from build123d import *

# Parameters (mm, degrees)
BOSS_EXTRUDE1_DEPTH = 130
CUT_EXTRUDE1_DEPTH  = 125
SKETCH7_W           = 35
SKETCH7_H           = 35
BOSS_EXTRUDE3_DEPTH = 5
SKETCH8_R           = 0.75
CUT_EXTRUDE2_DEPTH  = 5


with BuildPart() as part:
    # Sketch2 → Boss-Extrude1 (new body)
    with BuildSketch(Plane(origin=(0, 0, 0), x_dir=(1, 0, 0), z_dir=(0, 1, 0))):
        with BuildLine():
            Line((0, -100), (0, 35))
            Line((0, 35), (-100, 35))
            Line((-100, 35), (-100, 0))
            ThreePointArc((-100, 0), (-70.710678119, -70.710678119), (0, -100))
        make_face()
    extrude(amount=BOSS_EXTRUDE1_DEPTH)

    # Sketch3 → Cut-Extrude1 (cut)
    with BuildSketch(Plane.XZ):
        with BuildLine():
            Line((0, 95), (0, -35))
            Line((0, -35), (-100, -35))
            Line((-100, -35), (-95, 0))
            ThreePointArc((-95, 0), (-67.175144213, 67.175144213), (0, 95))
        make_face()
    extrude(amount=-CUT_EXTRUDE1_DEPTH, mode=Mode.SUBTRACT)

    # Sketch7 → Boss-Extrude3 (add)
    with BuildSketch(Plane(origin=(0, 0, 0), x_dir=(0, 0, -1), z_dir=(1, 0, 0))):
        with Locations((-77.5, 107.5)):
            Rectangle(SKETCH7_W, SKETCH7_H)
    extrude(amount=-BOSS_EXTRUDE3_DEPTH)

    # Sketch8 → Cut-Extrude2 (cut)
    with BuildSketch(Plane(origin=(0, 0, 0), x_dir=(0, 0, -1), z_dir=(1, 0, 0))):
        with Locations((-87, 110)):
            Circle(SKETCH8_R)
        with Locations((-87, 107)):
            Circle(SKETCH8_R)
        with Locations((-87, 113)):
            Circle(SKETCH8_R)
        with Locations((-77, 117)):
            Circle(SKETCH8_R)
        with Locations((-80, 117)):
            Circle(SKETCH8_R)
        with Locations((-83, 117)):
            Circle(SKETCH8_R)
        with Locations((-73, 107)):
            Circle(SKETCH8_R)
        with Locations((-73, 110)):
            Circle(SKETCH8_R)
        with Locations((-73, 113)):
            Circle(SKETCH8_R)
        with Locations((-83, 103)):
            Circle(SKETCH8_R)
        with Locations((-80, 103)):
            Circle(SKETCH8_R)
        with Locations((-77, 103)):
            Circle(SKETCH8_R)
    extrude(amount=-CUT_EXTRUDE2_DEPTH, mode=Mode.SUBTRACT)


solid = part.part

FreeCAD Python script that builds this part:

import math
import FreeCAD as App
import Part
import Sketcher
Q = App.Units.Quantity

doc = App.newDocument("Part")
body = doc.addObject("PartDesign::Body", "Body")

# Sketch on XZ plane
sketch1 = doc.addObject("Sketcher::SketchObject", "Sketch")
body.addObject(sketch1)
sketch1.AttachmentSupport = (doc.XZ_Plane, [""])
sketch1.MapMode = "FlatFace"
sketch1.addGeometry([
    Part.LineSegment(App.Vector(0, 100, 0), App.Vector(0, -35, 0)),
    Part.LineSegment(App.Vector(0, -35, 0), App.Vector(-100, -35, 0)),
    Part.LineSegment(App.Vector(-100, -35, 0), App.Vector(-100, 0, 0)),
    Part.ArcOfCircle(Part.Circle(App.Vector(0, 0, 0), App.Vector(0, 0, 1), 100), math.radians(90), math.radians(180)),
], False)
sketch1.addConstraint([
    Sketcher.Constraint("Coincident", 0, 2, 1, 1),
    Sketcher.Constraint("Coincident", 1, 2, 2, 1),
    Sketcher.Constraint("Tangent", 2, 2, 3, 2),
    Sketcher.Constraint("Coincident", 3, 1, 0, 1),
    Sketcher.Constraint("Vertical", 0),
    Sketcher.Constraint("Horizontal", 1),
    Sketcher.Constraint("Vertical", 2),
    Sketcher.Constraint("Coincident", 3, 3, -1, 1),
    Sketcher.Constraint("PointOnObject", 0, 2, -2),
    Sketcher.Constraint("Radius", 3, Q("100 mm")),
    Sketcher.Constraint("DistanceY", 0, 2, 0, 1, Q("135 mm")),
])
pad1 = doc.addObject("PartDesign::Pad", "Pad")
body.addObject(pad1)
pad1.Profile = sketch1
pad1.Length = 130
pad1.Reversed = True

# Sketch on XZ plane
sketch2 = doc.addObject("Sketcher::SketchObject", "Sketch001")
body.addObject(sketch2)
sketch2.AttachmentSupport = (doc.XZ_Plane, [""])
sketch2.MapMode = "FlatFace"
sketch2.addGeometry([
    Part.LineSegment(App.Vector(0, -35, 0), App.Vector(0, 95, 0)),
    Part.ArcOfCircle(Part.Circle(App.Vector(0, 0, 0), App.Vector(0, 0, 1), 95), math.radians(90), math.radians(180)),
    Part.LineSegment(App.Vector(-95, 0, 0), App.Vector(-100, -35, 0)),
    Part.LineSegment(App.Vector(-100, -35, 0), App.Vector(0, -35, 0)),
], False)
sketch2.addConstraint([
    Sketcher.Constraint("Coincident", 0, 2, 1, 1),
    Sketcher.Constraint("Coincident", 1, 2, 2, 1),
    Sketcher.Constraint("Coincident", 2, 2, 3, 1),
    Sketcher.Constraint("Coincident", 3, 2, 0, 1),
    Sketcher.Constraint("Vertical", 0),
    Sketcher.Constraint("Horizontal", 3),
    Sketcher.Constraint("Coincident", 1, 3, -1, 1),
    Sketcher.Constraint("PointOnObject", 0, 2, -2),
    Sketcher.Constraint("PointOnObject", 1, 2, -1),
    Sketcher.Constraint("Radius", 1, Q("95 mm")),
    Sketcher.Constraint("DistanceX", 3, 1, 3, 2, Q("100 mm")),
    Sketcher.Constraint("DistanceY", 0, 1, 0, 2, Q("130 mm")),
])
pocket1 = doc.addObject("PartDesign::Pocket", "Pocket")
body.addObject(pocket1)
pocket1.Profile = sketch2
pocket1.Length = 125

# Sketch on YZ plane
sketch3 = doc.addObject("Sketcher::SketchObject", "Sketch002")
body.addObject(sketch3)
sketch3.AttachmentSupport = (doc.YZ_Plane, [""])
sketch3.MapMode = "FlatFace"
sketch3.addGeometry([
    Part.LineSegment(App.Vector(125, 95, 0), App.Vector(90, 95, 0)),
    Part.LineSegment(App.Vector(90, 95, 0), App.Vector(90, 60, 0)),
    Part.LineSegment(App.Vector(90, 60, 0), App.Vector(125, 60, 0)),
    Part.LineSegment(App.Vector(125, 60, 0), App.Vector(125, 95, 0)),
], False)
sketch3.addConstraint([
    Sketcher.Constraint("Coincident", 0, 2, 1, 1),
    Sketcher.Constraint("Coincident", 1, 2, 2, 1),
    Sketcher.Constraint("Coincident", 2, 2, 3, 1),
    Sketcher.Constraint("Coincident", 3, 2, 0, 1),
    Sketcher.Constraint("Horizontal", 0),
    Sketcher.Constraint("Vertical", 1),
    Sketcher.Constraint("Horizontal", 2),
    Sketcher.Constraint("Vertical", 3),
    Sketcher.Constraint("Equal", 2, 1),
    Sketcher.Constraint("DistanceX", 0, 2, 0, 1, Q("35 mm")),
    Sketcher.Constraint("DistanceX", -1, 1, 0, 2, Q("90 mm")),
    Sketcher.Constraint("DistanceY", -1, 1, 0, 2, Q("95 mm")),
])
pad2 = doc.addObject("PartDesign::Pad", "Pad001")
body.addObject(pad2)
pad2.Profile = sketch3
pad2.Length = 5
pad2.Reversed = True

# Sketch on YZ plane
sketch4 = doc.addObject("Sketcher::SketchObject", "Sketch003")
body.addObject(sketch4)
sketch4.AttachmentSupport = (doc.YZ_Plane, [""])
sketch4.MapMode = "FlatFace"
sketch4.addGeometry([
    Part.Circle(App.Vector(110, 87, 0), App.Vector(0, 0, 1), 0.8),  # 0
    Part.Circle(App.Vector(107, 87, 0), App.Vector(0, 0, 1), 0.8),  # 1
    Part.Circle(App.Vector(113, 87, 0), App.Vector(0, 0, 1), 0.8),  # 2
    Part.Circle(App.Vector(117, 77, 0), App.Vector(0, 0, 1), 0.8),  # 3
    Part.Circle(App.Vector(117, 80, 0), App.Vector(0, 0, 1), 0.8),  # 4
    Part.Circle(App.Vector(117, 83, 0), App.Vector(0, 0, 1), 0.8),  # 5
    Part.Circle(App.Vector(107, 73, 0), App.Vector(0, 0, 1), 0.8),  # 6
    Part.Circle(App.Vector(110, 73, 0), App.Vector(0, 0, 1), 0.8),  # 7
    Part.Circle(App.Vector(113, 73, 0), App.Vector(0, 0, 1), 0.8),  # 8
    Part.Circle(App.Vector(103, 83, 0), App.Vector(0, 0, 1), 0.8),  # 9
    Part.Circle(App.Vector(103, 80, 0), App.Vector(0, 0, 1), 0.8),  # 10
    Part.Circle(App.Vector(103, 77, 0), App.Vector(0, 0, 1), 0.8),  # 11
], False)
sketch4.addConstraint([
    Sketcher.Constraint("Equal", 0, 1),
    Sketcher.Constraint("Equal", 1, 2),
    Sketcher.Constraint("Equal", 2, 3),
    Sketcher.Constraint("Equal", 3, 4),
    Sketcher.Constraint("Equal", 4, 5),
    Sketcher.Constraint("Equal", 5, 6),
    Sketcher.Constraint("Equal", 6, 7),
    Sketcher.Constraint("Equal", 7, 8),
    Sketcher.Constraint("Equal", 8, 9),
    Sketcher.Constraint("Equal", 9, 10),
    Sketcher.Constraint("Equal", 10, 11),
    Sketcher.Constraint("Horizontal", 0, 3, 1, 3),
    Sketcher.Constraint("Horizontal", 1, 3, 2, 3),
    Sketcher.Constraint("Horizontal", 6, 3, 7, 3),
    Sketcher.Constraint("Horizontal", 7, 3, 8, 3),
    Sketcher.Constraint("Horizontal", 5, 3, 9, 3),
    Sketcher.Constraint("Horizontal", 4, 3, 10, 3),
    Sketcher.Constraint("Horizontal", 3, 3, 11, 3),
    Sketcher.Constraint("Vertical", 3, 3, 4, 3),
    Sketcher.Constraint("Vertical", 4, 3, 5, 3),
    Sketcher.Constraint("Vertical", 1, 3, 6, 3),
    Sketcher.Constraint("Vertical", 0, 3, 7, 3),
    Sketcher.Constraint("Vertical", 2, 3, 8, 3),
    Sketcher.Constraint("Vertical", 9, 3, 10, 3),
    Sketcher.Constraint("Vertical", 10, 3, 11, 3),
    Sketcher.Constraint("Diameter", 0, Q("1.5 mm")),
    Sketcher.Constraint("DistanceX", -1, 1, 0, 3, Q("110 mm")),
    Sketcher.Constraint("DistanceY", -1, 1, 0, 3, Q("87 mm")),
    Sketcher.Constraint("DistanceX", -1, 1, 1, 3, Q("107 mm")),
    Sketcher.Constraint("DistanceX", -1, 1, 2, 3, Q("113 mm")),
    Sketcher.Constraint("DistanceX", -1, 1, 3, 3, Q("117 mm")),
    Sketcher.Constraint("DistanceY", -1, 1, 3, 3, Q("77 mm")),
    Sketcher.Constraint("DistanceY", -1, 1, 4, 3, Q("80 mm")),
    Sketcher.Constraint("DistanceY", -1, 1, 5, 3, Q("83 mm")),
    Sketcher.Constraint("DistanceY", -1, 1, 6, 3, Q("73 mm")),
    Sketcher.Constraint("DistanceX", -1, 1, 9, 3, Q("103 mm")),
])
pocket2 = doc.addObject("PartDesign::Pocket", "Pocket001")
body.addObject(pocket2)
pocket2.Profile = sketch4
pocket2.Length = 5

doc.recompute()
